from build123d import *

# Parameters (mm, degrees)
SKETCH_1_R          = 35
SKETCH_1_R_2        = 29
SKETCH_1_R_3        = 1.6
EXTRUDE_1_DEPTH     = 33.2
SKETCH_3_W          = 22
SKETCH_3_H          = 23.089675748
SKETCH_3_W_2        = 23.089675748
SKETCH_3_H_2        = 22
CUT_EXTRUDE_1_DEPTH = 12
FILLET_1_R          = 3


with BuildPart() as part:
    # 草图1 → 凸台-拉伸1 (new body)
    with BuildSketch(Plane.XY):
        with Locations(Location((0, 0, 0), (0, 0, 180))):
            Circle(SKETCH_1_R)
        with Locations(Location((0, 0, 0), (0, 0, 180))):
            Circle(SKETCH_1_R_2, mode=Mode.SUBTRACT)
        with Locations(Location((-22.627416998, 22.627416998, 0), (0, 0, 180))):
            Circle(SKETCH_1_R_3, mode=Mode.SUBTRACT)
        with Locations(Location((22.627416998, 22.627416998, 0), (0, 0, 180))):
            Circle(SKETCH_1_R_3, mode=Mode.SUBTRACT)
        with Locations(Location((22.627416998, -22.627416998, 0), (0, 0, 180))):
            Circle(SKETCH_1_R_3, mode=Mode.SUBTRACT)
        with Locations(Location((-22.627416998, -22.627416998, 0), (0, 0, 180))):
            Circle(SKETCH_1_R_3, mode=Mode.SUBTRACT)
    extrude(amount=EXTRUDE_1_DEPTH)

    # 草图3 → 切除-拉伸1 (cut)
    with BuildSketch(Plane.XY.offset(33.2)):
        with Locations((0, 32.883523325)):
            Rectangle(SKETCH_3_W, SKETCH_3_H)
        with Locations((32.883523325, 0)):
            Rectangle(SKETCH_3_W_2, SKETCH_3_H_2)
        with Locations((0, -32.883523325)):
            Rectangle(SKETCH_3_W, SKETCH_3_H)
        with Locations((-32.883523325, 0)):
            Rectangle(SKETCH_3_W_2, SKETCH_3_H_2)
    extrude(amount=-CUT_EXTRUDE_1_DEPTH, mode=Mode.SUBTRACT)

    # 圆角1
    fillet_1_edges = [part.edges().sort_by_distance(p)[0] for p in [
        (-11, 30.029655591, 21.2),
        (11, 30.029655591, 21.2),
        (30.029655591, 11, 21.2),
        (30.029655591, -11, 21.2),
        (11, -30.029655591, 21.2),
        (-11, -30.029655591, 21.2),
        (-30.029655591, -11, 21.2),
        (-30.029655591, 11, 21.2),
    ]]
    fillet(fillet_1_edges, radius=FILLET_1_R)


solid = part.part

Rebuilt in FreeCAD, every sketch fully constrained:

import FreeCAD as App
import Part
import Sketcher

V = App.Vector


def edges_at(feature, points):
    """Names of the edges that pass closest to the given points."""
    edges = feature.Shape.Edges
    near = lambda p: min(range(len(edges)), key=lambda i: edges[i].distToShape(Part.Vertex(*p))[0])
    return sorted({f"Edge{near(p) + 1}" for p in points})

doc = App.newDocument("Part")
body = doc.addObject("PartDesign::Body", "Body")

# Sketch on XY plane
sketch1 = body.newObject("Sketcher::SketchObject", "Sketch")
sketch1.AttachmentSupport = (doc.getObject("XY_Plane"), [""])
sketch1.MapMode = "FlatFace"
sketch1.addGeometry([
    Part.Circle(V(0, 0, 0), V(0, 0, 1), 35),  # 0
    Part.Circle(V(22.627417, 22.627417, 0), V(0, 0, 1), 1.6),  # 1
    Part.Circle(V(-22.627417, 22.627417, 0), V(0, 0, 1), 1.6),  # 2
    Part.Circle(V(22.627417, -22.627417, 0), V(0, 0, 1), 1.6),  # 3
    Part.Circle(V(0, 0, 0), V(0, 0, 1), 29),  # 4
    Part.Circle(V(-22.627417, -22.627417, 0), V(0, 0, 1), 1.6),  # 5
], False)
sketch1.addConstraint([
    Sketcher.Constraint("Coincident", 0, 3, -1, 1),
    Sketcher.Constraint("Coincident", 4, 3, -1, 1),
    Sketcher.Constraint("Equal", 1, 2),
    Sketcher.Constraint("Equal", 2, 3),
    Sketcher.Constraint("Equal", 3, 5),
    Sketcher.Constraint("Symmetric", 2, 3, 3, 3, -1, 1),
    Sketcher.Constraint("Symmetric", 1, 3, 5, 3, -1, 1),
    Sketcher.Constraint("Symmetric", 1, 3, 2, 3, -2),
    Sketcher.Constraint("Diameter", 0, 70.0),
    Sketcher.Constraint("Diameter", 4, 58.0),
    Sketcher.Constraint("Diameter", 1, 3.2),
    Sketcher.Constraint("DistanceX", -1, 1, 1, 3, 22.627417),
    Sketcher.Constraint("DistanceY", -1, 1, 1, 3, 22.627417),
])
pad1 = body.newObject("PartDesign::Pad", "Pad")
pad1.Profile = sketch1
pad1.Length = 33.2

# Sketch on XY plane
sketch2 = body.newObject("Sketcher::SketchObject", "Sketch001")
sketch2.AttachmentSupport = (doc.getObject("XY_Plane"), [""])
sketch2.MapMode = "FlatFace"
sketch2.AttachmentOffset = App.Placement(V(0, 0, 33.2), App.Rotation())
sketch2.addGeometry([
    Part.LineSegment(V(-11, 44.428361, 0), V(-11, 21.338685, 0)),  # 0
    Part.LineSegment(V(-11, 21.338685, 0), V(11, 21.338685, 0)),  # 1
    Part.LineSegment(V(11, 21.338685, 0), V(11, 44.428361, 0)),  # 2
    Part.LineSegment(V(11, 44.428361, 0), V(-11, 44.428361, 0)),  # 3
    Part.LineSegment(V(21.338685, 11, 0), V(21.338685, -11, 0)),  # 4
    Part.LineSegment(V(21.338685, -11, 0), V(44.428361, -11, 0)),  # 5
    Part.LineSegment(V(44.428361, -11, 0), V(44.428361, 11, 0)),  # 6
    Part.LineSegment(V(44.428361, 11, 0), V(21.338685, 11, 0)),  # 7
    Part.LineSegment(V(-11, -21.338685, 0), V(-11, -44.428361, 0)),  # 8
    Part.LineSegment(V(-11, -44.428361, 0), V(11, -44.428361, 0)),  # 9
    Part.LineSegment(V(11, -44.428361, 0), V(11, -21.338685, 0)),  # 10
    Part.LineSegment(V(11, -21.338685, 0), V(-11, -21.338685, 0)),  # 11
    Part.LineSegment(V(-44.428361, 11, 0), V(-44.428361, -11, 0)),  # 12
    Part.LineSegment(V(-44.428361, -11, 0), V(-21.338685, -11, 0)),  # 13
    Part.LineSegment(V(-21.338685, -11, 0), V(-21.338685, 11, 0)),  # 14
    Part.LineSegment(V(-21.338685, 11, 0), V(-44.428361, 11, 0)),  # 15
], False)
sketch2.addConstraint([
    Sketcher.Constraint("Coincident", 0, 2, 1, 1),
    Sketcher.Constraint("Coincident", 1, 2, 2, 1),
    Sketcher.Constraint("Coincident", 2, 2, 3, 1),
    Sketcher.Constraint("Coincident", 3, 2, 0, 1),
    Sketcher.Constraint("Coincident", 4, 2, 5, 1),
    Sketcher.Constraint("Coincident", 5, 2, 6, 1),
    Sketcher.Constraint("Coincident", 6, 2, 7, 1),
    Sketcher.Constraint("Coincident", 7, 2, 4, 1),
    Sketcher.Constraint("Coincident", 8, 2, 9, 1),
    Sketcher.Constraint("Coincident", 9, 2, 10, 1),
    Sketcher.Constraint("Coincident", 10, 2, 11, 1),
    Sketcher.Constraint("Coincident", 11, 2, 8, 1),
    Sketcher.Constraint("Coincident", 12, 2, 13, 1),
    Sketcher.Constraint("Coincident", 13, 2, 14, 1),
    Sketcher.Constraint("Coincident", 14, 2, 15, 1),
    Sketcher.Constraint("Coincident", 15, 2, 12, 1),
    Sketcher.Constraint("Vertical", 0),
    Sketcher.Constraint("Horizontal", 1),
    Sketcher.Constraint("Vertical", 2),
    Sketcher.Constraint("Horizontal", 3),
    Sketcher.Constraint("Vertical", 4),
    Sketcher.Constraint("Horizontal", 5),
    Sketcher.Constraint("Vertical", 6),
    Sketcher.Constraint("Horizontal", 7),
    Sketcher.Constraint("Vertical", 8),
    Sketcher.Constraint("Horizontal", 9),
    Sketcher.Constraint("Vertical", 10),
    Sketcher.Constraint("Horizontal", 11),
    Sketcher.Constraint("Vertical", 12),
    Sketcher.Constraint("Horizontal", 13),
    Sketcher.Constraint("Vertical", 14),
    Sketcher.Constraint("Horizontal", 15),
    Sketcher.Constraint("Symmetric", 2, 2, 8, 2, -1, 1),
    Sketcher.Constraint("Symmetric", 0, 2, 10, 2, -1, 1),
    Sketcher.Constraint("Symmetric", 6, 2, 12, 2, -1, 1),
    Sketcher.Constraint("Symmetric", 4, 2, 14, 2, -1, 1),
    Sketcher.Constraint("Horizontal", 5, 2, 12, 2),
    Sketcher.Constraint("Vertical", 3, 2, 8, 2),
    Sketcher.Constraint("Equal", 15, 0),
    Sketcher.Constraint("Equal", 11, 4),
    Sketcher.Constraint("DistanceX", 1, 1, 1, 2, 22.0),
    Sketcher.Constraint("DistanceX", 5, 1, 5, 2, 23.089676),
    Sketcher.Constraint("DistanceY", -1, 1, 2, 2, 44.428361),
    Sketcher.Constraint("DistanceX", -1, 1, 5, 2, 44.428361),
])
pocket1 = body.newObject("PartDesign::Pocket", "Pocket")
pocket1.Profile = sketch2
pocket1.Length = 12
doc.recompute()

fillet = body.newObject("PartDesign::Fillet", "Fillet")
fillet.Base = (pocket1, edges_at(pocket1, [
    (-11, 30.03, 21.2),
    (11, 30.03, 21.2),
    (30.03, 11, 21.2),
    (30.03, -11, 21.2),
    (11, -30.03, 21.2),
    (-11, -30.03, 21.2),
    (-30.03, -11, 21.2),
    (-30.03, 11, 21.2),
]))
fillet.Radius = 3

doc.recompute()
